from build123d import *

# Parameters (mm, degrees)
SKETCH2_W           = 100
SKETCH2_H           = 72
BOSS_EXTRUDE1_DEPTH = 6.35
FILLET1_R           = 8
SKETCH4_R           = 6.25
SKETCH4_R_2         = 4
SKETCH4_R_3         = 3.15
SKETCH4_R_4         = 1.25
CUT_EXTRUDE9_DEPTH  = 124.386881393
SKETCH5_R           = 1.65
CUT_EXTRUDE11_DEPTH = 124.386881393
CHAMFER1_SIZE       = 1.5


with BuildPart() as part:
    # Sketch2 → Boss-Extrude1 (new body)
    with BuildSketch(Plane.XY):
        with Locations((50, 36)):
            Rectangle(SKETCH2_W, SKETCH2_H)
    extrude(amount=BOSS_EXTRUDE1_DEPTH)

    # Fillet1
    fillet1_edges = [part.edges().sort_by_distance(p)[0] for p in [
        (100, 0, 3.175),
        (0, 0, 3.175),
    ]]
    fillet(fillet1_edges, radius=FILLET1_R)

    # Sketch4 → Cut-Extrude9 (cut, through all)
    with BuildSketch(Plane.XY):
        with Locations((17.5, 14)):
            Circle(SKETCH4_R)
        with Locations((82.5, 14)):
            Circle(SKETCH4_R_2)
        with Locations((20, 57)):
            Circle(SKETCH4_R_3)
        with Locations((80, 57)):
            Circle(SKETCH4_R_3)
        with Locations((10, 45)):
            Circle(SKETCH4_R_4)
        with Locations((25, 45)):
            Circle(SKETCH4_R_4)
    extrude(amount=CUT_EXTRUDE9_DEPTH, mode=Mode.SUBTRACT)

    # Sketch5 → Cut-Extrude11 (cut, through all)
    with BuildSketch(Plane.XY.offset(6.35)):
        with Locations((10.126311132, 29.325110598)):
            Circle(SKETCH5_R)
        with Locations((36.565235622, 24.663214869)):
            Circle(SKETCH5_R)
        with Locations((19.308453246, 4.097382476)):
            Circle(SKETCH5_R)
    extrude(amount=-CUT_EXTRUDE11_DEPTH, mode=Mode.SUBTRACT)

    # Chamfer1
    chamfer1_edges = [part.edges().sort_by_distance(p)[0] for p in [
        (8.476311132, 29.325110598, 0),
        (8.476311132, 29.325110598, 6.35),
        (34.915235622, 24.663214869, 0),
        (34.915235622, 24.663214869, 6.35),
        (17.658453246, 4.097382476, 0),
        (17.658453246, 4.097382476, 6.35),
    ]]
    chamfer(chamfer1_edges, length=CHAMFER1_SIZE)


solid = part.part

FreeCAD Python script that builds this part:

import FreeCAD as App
import Part
import Sketcher
from FreeCAD import Vector
Q = App.Units.Quantity


def edges_at(feature, points):
    """Names of the edges that pass closest to the given points."""
    edges = feature.Shape.Edges
    near = lambda p: min(range(len(edges)), key=lambda i: edges[i].distToShape(Part.Vertex(*p))[0])
    return sorted({f"Edge{near(p) + 1}" for p in points})


def add_polygon(sketch, points):
    """Adds a closed chain of lines whose ends are joined by coincident constraints."""
    first, n = sketch.GeometryCount, len(points)
    for a, b in zip(points, points[1:] + points[:1]):
        sketch.addGeometry(Part.LineSegment(App.Vector(*a, 0), App.Vector(*b, 0)), False)
    for i in range(n):
        sketch.addConstraint(Sketcher.Constraint("Coincident", first + i, 2, first + (i + 1) % n, 1))

doc = App.newDocument("Part")
body = doc.addObject("PartDesign::Body", "Body")

# Sketch on XY plane
sketch1 = body.newObject("Sketcher::SketchObject", "Sketch")
sketch1.AttachmentSupport = (doc.getObject("XY_Plane"), [""])
sketch1.MapMode = "FlatFace"
add_polygon(sketch1, [(0, 72), (0, 0), (100, 0), (100, 72)])  # lines 0-3
sketch1.addConstraint([
    Sketcher.Constraint("Vertical", 0),
    Sketcher.Constraint("Horizontal", 1),
    Sketcher.Constraint("Vertical", 2),
    Sketcher.Constraint("Horizontal", 3),
    Sketcher.Constraint("Coincident", 0, 2, -1, 1),
    Sketcher.Constraint("DistanceX", 1, 1, 1, 2, Q("100 mm")),
    Sketcher.Constraint("DistanceY", 0, 2, 0, 1, Q("72 mm")),
])
pad1 = body.newObject("PartDesign::Pad", "Pad")
pad1.Profile = sketch1
pad1.Length = 6.35
doc.recompute()

fillet = body.newObject("PartDesign::Fillet", "Fillet")
fillet.Base = (pad1, edges_at(pad1, [(100, 0, 3.175), (0, 0, 3.175)]))
fillet.Radius = 8

# Sketch on XY plane
sketch2 = body.newObject("Sketcher::SketchObject", "Sketch001")
sketch2.AttachmentSupport = (doc.getObject("XY_Plane"), [""])
sketch2.MapMode = "FlatFace"
sketch2.addGeometry([
    Part.Circle(Vector(17.5, 14, 0), Vector(0, 0, 1), 6.2),  # 0
    Part.Circle(Vector(82.5, 14, 0), Vector(0, 0, 1), 4),  # 1
    Part.Circle(Vector(20, 57, 0), Vector(0, 0, 1), 3.1),  # 2
    Part.Circle(Vector(80, 57, 0), Vector(0, 0, 1), 3.1),  # 3
    Part.Circle(Vector(10, 45, 0), Vector(0, 0, 1), 1.2),  # 4
    Part.Circle(Vector(25, 45, 0), Vector(0, 0, 1), 1.2),  # 5
], False)
sketch2.addConstraint([
    Sketcher.Constraint("Equal", 2, 3),
    Sketcher.Constraint("Equal", 4, 5),
    Sketcher.Constraint("Horizontal", 0, 3, 1, 3),
    Sketcher.Constraint("Horizontal", 2, 3, 3, 3),
    Sketcher.Constraint("Horizontal", 4, 3, 5, 3),
    Sketcher.Constraint("Diameter", 1, Q("8 mm")),
    Sketcher.Constraint("Diameter", 0, Q("12.5 mm")),
    Sketcher.Constraint("Diameter", 2, Q("6.3 mm")),
    Sketcher.Constraint("Diameter", 4, Q("2.5 mm")),
    Sketcher.Constraint("DistanceY", -1, 1, 0, 3, Q("14 mm")),
    Sketcher.Constraint("DistanceX", -1, 1, 2, 3, Q("20 mm")),
    Sketcher.Constraint("DistanceY", -1, 1, 2, 3, Q("57 mm")),
    Sketcher.Constraint("DistanceX", -1, 1, 3, 3, Q("80 mm")),
    Sketcher.Constraint("DistanceX", -1, 1, 4, 3, Q("10 mm")),
    Sketcher.Constraint("DistanceY", -1, 1, 4, 3, Q("45 mm")),
    Sketcher.Constraint("DistanceX", -1, 1, 5, 3, Q("25 mm")),
    Sketcher.Constraint("DistanceX", 0, 3, 1, 3, Q("65 mm")),
    Sketcher.Constraint("DistanceX", -1, 1, 0, 3, Q("17.5 mm")),
])
pocket1 = body.newObject("PartDesign::Pocket", "Pocket")
pocket1.Profile = sketch2
pocket1.Type = "ThroughAll"
pocket1.Reversed = True

# Sketch on XY plane
sketch3 = body.newObject("Sketcher::SketchObject", "Sketch002")
sketch3.AttachmentSupport = (doc.getObject("XY_Plane"), [""])
sketch3.MapMode = "FlatFace"
sketch3.AttachmentOffset = App.Placement(Vector(0, 0, 6.35), App.Rotation())
sketch3.addGeometry([
    Part.Circle(Vector(10.1, 29.3, 0), Vector(0, 0, 1), 1.6),
    Part.Circle(Vector(36.6, 24.7, 0), Vector(0, 0, 1), 1.6),
    Part.Circle(Vector(19.3, 4.1, 0), Vector(0, 0, 1), 1.6),
], False)
sketch3.addConstraint([
    Sketcher.Constraint("Equal", 0, 1),
    Sketcher.Constraint("Equal", 1, 2),
    Sketcher.Constraint("Diameter", 0, Q("3.3 mm")),
    Sketcher.Constraint("DistanceX", -1, 1, 0, 3, Q("10.126311 mm")),
    Sketcher.Constraint("DistanceY", -1, 1, 0, 3, Q("29.325111 mm")),
    Sketcher.Constraint("DistanceY", 2, 3, 0, 3, Q("25.227728 mm")),
    Sketcher.Constraint("DistanceX", -1, 1, 1, 3, Q("36.565236 mm")),
    Sketcher.Constraint("DistanceY", -1, 1, 1, 3, Q("24.663215 mm")),
    Sketcher.Constraint("DistanceX", -1, 1, 2, 3, Q("19.308453 mm")),
])
pocket2 = body.newObject("PartDesign::Pocket", "Pocket001")
pocket2.Profile = sketch3
pocket2.Type = "ThroughAll"
doc.recompute()

chamfer = body.newObject("PartDesign::Chamfer", "Chamfer")
chamfer.Base = (pocket2, edges_at(pocket2, [
    (8.476, 29.325, 0),
    (8.476, 29.325, 6.35),
    (34.915, 24.663, 0),
    (34.915, 24.663, 6.35),
    (17.658, 4.097, 0),
    (17.658, 4.097, 6.35),
]))
chamfer.Size = 1.5

doc.recompute()
